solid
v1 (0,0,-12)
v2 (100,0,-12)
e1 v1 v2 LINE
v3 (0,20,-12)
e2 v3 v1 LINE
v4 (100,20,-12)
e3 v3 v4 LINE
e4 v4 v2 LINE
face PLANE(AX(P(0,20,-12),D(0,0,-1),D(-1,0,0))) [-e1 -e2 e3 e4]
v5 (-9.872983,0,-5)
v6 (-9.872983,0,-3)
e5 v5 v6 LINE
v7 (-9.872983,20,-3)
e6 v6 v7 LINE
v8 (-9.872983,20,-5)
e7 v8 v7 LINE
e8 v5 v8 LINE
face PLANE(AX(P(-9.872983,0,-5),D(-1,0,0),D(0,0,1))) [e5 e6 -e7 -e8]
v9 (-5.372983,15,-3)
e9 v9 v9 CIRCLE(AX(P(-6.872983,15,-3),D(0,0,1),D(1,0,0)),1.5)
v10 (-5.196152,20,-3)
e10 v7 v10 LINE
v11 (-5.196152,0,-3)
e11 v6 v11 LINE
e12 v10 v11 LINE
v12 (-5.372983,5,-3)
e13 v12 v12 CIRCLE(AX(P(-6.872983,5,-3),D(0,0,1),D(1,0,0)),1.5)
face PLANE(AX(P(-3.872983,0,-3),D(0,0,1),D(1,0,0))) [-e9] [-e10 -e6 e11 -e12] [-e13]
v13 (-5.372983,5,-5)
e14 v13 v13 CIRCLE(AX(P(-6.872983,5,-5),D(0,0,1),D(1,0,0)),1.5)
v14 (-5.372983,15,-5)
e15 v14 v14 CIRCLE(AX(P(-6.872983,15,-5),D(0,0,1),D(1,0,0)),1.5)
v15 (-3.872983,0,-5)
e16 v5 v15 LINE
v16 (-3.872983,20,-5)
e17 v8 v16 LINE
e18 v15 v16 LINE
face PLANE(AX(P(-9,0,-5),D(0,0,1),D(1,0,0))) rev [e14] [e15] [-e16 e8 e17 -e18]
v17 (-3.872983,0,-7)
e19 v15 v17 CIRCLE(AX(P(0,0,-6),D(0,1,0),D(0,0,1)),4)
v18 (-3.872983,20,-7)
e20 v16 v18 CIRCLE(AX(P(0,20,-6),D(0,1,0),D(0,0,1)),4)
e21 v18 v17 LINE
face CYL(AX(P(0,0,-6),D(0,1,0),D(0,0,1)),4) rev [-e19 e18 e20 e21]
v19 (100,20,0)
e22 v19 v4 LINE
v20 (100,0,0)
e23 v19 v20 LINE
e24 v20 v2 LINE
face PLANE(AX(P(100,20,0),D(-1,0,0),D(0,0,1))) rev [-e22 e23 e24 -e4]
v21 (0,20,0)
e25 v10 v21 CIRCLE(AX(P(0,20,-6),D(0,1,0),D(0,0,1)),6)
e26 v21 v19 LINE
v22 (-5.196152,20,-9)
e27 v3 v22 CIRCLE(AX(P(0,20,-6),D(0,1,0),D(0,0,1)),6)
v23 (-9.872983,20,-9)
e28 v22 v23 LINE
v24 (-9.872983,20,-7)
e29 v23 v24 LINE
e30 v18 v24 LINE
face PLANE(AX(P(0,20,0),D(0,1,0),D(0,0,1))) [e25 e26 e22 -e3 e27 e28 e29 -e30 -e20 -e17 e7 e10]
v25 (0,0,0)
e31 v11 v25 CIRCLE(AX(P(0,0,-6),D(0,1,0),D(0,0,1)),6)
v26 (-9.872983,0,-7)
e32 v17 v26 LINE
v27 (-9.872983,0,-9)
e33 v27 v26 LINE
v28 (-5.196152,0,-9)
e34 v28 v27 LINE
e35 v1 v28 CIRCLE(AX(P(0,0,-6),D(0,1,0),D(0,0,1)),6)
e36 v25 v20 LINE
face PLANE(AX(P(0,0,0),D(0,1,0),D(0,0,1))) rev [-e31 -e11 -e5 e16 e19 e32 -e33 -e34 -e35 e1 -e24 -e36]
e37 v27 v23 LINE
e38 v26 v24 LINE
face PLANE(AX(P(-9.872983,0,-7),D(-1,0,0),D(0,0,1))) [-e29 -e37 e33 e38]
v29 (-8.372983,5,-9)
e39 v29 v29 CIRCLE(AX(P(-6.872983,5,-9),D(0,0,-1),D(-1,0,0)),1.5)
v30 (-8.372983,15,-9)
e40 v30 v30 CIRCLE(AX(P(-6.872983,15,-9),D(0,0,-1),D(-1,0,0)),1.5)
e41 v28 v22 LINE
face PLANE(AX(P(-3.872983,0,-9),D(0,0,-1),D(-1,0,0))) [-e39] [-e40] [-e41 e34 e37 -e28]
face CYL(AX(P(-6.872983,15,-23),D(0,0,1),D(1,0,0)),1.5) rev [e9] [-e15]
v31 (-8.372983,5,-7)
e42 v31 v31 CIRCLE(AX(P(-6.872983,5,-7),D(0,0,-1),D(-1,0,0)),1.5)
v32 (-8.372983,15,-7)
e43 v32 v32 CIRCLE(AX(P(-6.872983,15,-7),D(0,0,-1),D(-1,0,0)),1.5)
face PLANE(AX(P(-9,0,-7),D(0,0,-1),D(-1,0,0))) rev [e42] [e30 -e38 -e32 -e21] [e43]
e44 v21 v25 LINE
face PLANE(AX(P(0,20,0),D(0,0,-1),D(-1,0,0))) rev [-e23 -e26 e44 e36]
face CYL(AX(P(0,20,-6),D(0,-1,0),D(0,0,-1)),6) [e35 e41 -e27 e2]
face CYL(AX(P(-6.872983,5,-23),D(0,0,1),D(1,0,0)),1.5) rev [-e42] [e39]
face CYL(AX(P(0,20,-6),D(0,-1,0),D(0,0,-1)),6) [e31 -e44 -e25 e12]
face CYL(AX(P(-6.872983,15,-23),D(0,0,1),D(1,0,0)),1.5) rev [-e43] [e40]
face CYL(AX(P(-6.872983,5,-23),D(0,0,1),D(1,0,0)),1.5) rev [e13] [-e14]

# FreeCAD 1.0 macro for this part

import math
import FreeCAD as App
import Part
import Sketcher
from FreeCAD import Vector

doc = App.newDocument("Part")
params = doc.addObject("Spreadsheet::Sheet", "Params")
for row, (alias, value) in enumerate([
    ("sketch1_radius", "6 mm"),
    ("sketch1_width", "100 mm"),
    ("pad1_length", "20 mm"),
    ("sketch2_diameter", "8 mm"),
    ("pocket1_length", "20 mm"),
    ("sketch3_width", "10 mm"),
    ("sketch3_height", "2 mm"),
    ("pocket2_length", "20 mm"),
    ("sketch4_width", "6 mm"),
    ("sketch4_height", "2 mm"),
    ("pad2_length", "20 mm"),
    ("sketch5_diameter", "3 mm"),
    ("pocket3_length", "20 mm"),
], start=1):
    params.set(f"A{row}", alias)
    params.set(f"B{row}", "=" + value)
    params.setAlias(f"B{row}", alias)

body = doc.addObject("PartDesign::Body", "Body")

# Sketch on XZ plane
sketch1 = doc.addObject("Sketcher::SketchObject", "Sketch")
body.addObject(sketch1)
sketch1.AttachmentSupport = (doc.XZ_Plane, [""])
sketch1.MapMode = "FlatFace"
sketch1.addGeometry(Part.LineSegment(Vector(0, 0, 0), Vector(100, 0, 0)), False)
sketch1.addGeometry(Part.LineSegment(Vector(100, 0, 0), Vector(100, -12, 0)), False)
sketch1.addGeometry(Part.LineSegment(Vector(100, -12, 0), Vector(0, -12, 0)), False)
sketch1.addGeometry(Part.ArcOfCircle(Part.Circle(Vector(0, -6, 0), Vector(0, 0, 1), 6), math.radians(90), math.radians(270)), False)
sketch1.addConstraint(Sketcher.Constraint("Coincident", 0, 2, 1, 1))
sketch1.addConstraint(Sketcher.Constraint("Coincident", 1, 2, 2, 1))
sketch1.addConstraint(Sketcher.Constraint("Tangent", 2, 2, 3, 2))
sketch1.addConstraint(Sketcher.Constraint("Tangent", 3, 1, 0, 1))
sketch1.addConstraint(Sketcher.Constraint("Horizontal", 0))
sketch1.addConstraint(Sketcher.Constraint("Vertical", 1))
sketch1.addConstraint(Sketcher.Constraint("Horizontal", 2))
sketch1.addConstraint(Sketcher.Constraint("Coincident", 3, 1, -1, 1))
sketch1.addConstraint(Sketcher.Constraint("Radius", 3, 6.0))
sketch1.addConstraint(Sketcher.Constraint("DistanceX", 0, 1, 0, 2, 100.0))
sketch1.setExpression("Constraints[8]", "Params.sketch1_radius")
sketch1.setExpression("Constraints[9]", "Params.sketch1_width")
pad1 = doc.addObject("PartDesign::Pad", "Pad")
body.addObject(pad1)
pad1.Profile = sketch1
pad1.setExpression("Length", "Params.pad1_length")
pad1.Reversed = True

# Sketch on XZ plane
sketch2 = doc.addObject("Sketcher::SketchObject", "Sketch001")
body.addObject(sketch2)
sketch2.AttachmentSupport = (doc.XZ_Plane, [""])
sketch2.MapMode = "FlatFace"
sketch2.AttachmentOffset = App.Placement(Vector(0, 0, -20), App.Rotation())
sketch2.addGeometry(Part.Circle(Vector(0, -6, 0), Vector(0, 0, 1), 4), False)
sketch2.addConstraint(Sketcher.Constraint("PointOnObject", 0, 3, -2))
sketch2.addConstraint(Sketcher.Constraint("Diameter", 0, 8.0))
sketch2.addConstraint(Sketcher.Constraint("DistanceY", 0, 3, -1, 1, 6.0))
sketch2.setExpression("Constraints[1]", "Params.sketch2_diameter")
pocket1 = doc.addObject("PartDesign::Pocket", "Pocket")
body.addObject(pocket1)
pocket1.Profile = sketch2
pocket1.setExpression("Length", "Params.pocket1_length")
pocket1.Reversed = True

# Sketch on XZ plane
sketch3 = doc.addObject("Sketcher::SketchObject", "Sketch002")
body.addObject(sketch3)
sketch3.AttachmentSupport = (doc.XZ_Plane, [""])
sketch3.MapMode = "FlatFace"
sketch3.AttachmentOffset = App.Placement(Vector(0, 0, -20), App.Rotation())
sketch3.addGeometry(Part.LineSegment(Vector(-9, -7, 0), Vector(-9, -5, 0)), False)
sketch3.addGeometry(Part.LineSegment(Vector(-9, -5, 0), Vector(1, -5, 0)), False)
sketch3.addGeometry(Part.LineSegment(Vector(1, -5, 0), Vector(1, -7, 0)), False)
sketch3.addGeometry(Part.LineSegment(Vector(1, -7, 0), Vector(-9, -7, 0)), False)
sketch3.addConstraint(Sketcher.Constraint("Coincident", 0, 2, 1, 1))
sketch3.addConstraint(Sketcher.Constraint("Coincident", 1, 2, 2, 1))
sketch3.addConstraint(Sketcher.Constraint("Coincident", 2, 2, 3, 1))
sketch3.addConstraint(Sketcher.Constraint("Coincident", 3, 2, 0, 1))
sketch3.addConstraint(Sketcher.Constraint("Vertical", 0))
sketch3.addConstraint(Sketcher.Constraint("Horizontal", 1))
sketch3.addConstraint(Sketcher.Constraint("Vertical", 2))
sketch3.addConstraint(Sketcher.Constraint("Horizontal", 3))
sketch3.addConstraint(Sketcher.Constraint("DistanceX", 1, 1, 1, 2, 10.0))
sketch3.addConstraint(Sketcher.Constraint("DistanceY", 0, 1, 0, 2, 2.0))
sketch3.addConstraint(Sketcher.Constraint("DistanceX", 0, 2, -1, 1, 9.0))
sketch3.addConstraint(Sketcher.Constraint("DistanceY", 0, 2, -1, 1, 5.0))
sketch3.setExpression("Constraints[8]", "Params.sketch3_width")
sketch3.setExpression("Constraints[9]", "Params.sketch3_height")
pocket2 = doc.addObject("PartDesign::Pocket", "Pocket001")
body.addObject(pocket2)
pocket2.Profile = sketch3
pocket2.setExpression("Length", "Params.pocket2_length")
pocket2.Reversed = True

# Sketch on XZ plane
sketch4 = doc.addObject("Sketcher::SketchObject", "Sketch003")
body.addObject(sketch4)
sketch4.AttachmentSupport = (doc.XZ_Plane, [""])
sketch4.MapMode = "FlatFace"
sketch4.AttachmentOffset = App.Placement(Vector(0, 0, -20), App.Rotation())
sketch4.addGeometry(Part.LineSegment(Vector(-9.9, -9, 0), Vector(-9.9, -7, 0)), False)
sketch4.addGeometry(Part.LineSegment(Vector(-9.9, -7, 0), Vector(-3.9, -7, 0)), False)
sketch4.addGeometry(Part.LineSegment(Vector(-3.9, -7, 0), Vector(-3.9, -9, 0)), False)
sketch4.addGeometry(Part.LineSegment(Vector(-3.9, -9, 0), Vector(-9.9, -9, 0)), False)
sketch4.addGeometry(Part.LineSegment(Vector(-9.9, -5, 0), Vector(-9.9, -3, 0)), False)
sketch4.addGeometry(Part.LineSegment(Vector(-9.9, -3, 0), Vector(-3.9, -3, 0)), False)
sketch4.addGeometry(Part.LineSegment(Vector(-3.9, -3, 0), Vector(-3.9, -5, 0)), False)
sketch4.addGeometry(Part.LineSegment(Vector(-3.9, -5, 0), Vector(-9.9, -5, 0)), False)
sketch4.addConstraint(Sketcher.Constraint("Coincident", 0, 2, 1, 1))
sketch4.addConstraint(Sketcher.Constraint("Coincident", 1, 2, 2, 1))
sketch4.addConstraint(Sketcher.Constraint("Coincident", 2, 2, 3, 1))
sketch4.addConstraint(Sketcher.Constraint("Coincident", 3, 2, 0, 1))
sketch4.addConstraint(Sketcher.Constraint("Coincident", 4, 2, 5, 1))
sketch4.addConstraint(Sketcher.Constraint("Coincident", 5, 2, 6, 1))
sketch4.addConstraint(Sketcher.Constraint("Coincident", 6, 2, 7, 1))
sketch4.addConstraint(Sketcher.Constraint("Coincident", 7, 2, 4, 1))
sketch4.addConstraint(Sketcher.Constraint("Vertical", 0))
sketch4.addConstraint(Sketcher.Constraint("Horizontal", 1))
sketch4.addConstraint(Sketcher.Constraint("Vertical", 2))
sketch4.addConstraint(Sketcher.Constraint("Horizontal", 3))
sketch4.addConstraint(Sketcher.Constraint("Vertical", 4))
sketch4.addConstraint(Sketcher.Constraint("Horizontal", 5))
sketch4.addConstraint(Sketcher.Constraint("Vertical", 6))
sketch4.addConstraint(Sketcher.Constraint("Horizontal", 7))
sketch4.addConstraint(Sketcher.Constraint("Vertical", 3, 2, 4, 2))
sketch4.addConstraint(Sketcher.Constraint("Vertical", 2, 2, 5, 2))
sketch4.addConstraint(Sketcher.Constraint("Equal", 2, 4))
sketch4.addConstraint(Sketcher.Constraint("DistanceX", 1, 1, 1, 2, 6.0))
sketch4.addConstraint(Sketcher.Constraint("DistanceY", 0, 1, 0, 2, 2.0))
sketch4.addConstraint(Sketcher.Constraint("DistanceY", 0, 2, -1, 1, 7.0))
sketch4.addConstraint(Sketcher.Constraint("DistanceY", 4, 2, -1, 1, 3.0))
sketch4.addConstraint(Sketcher.Constraint("DistanceX", 0, 2, -1, 1, 9.872983))
sketch4.setExpression("Constraints[19]", "Params.sketch4_width")
sketch4.setExpression("Constraints[20]", "Params.sketch4_height")
pad2 = doc.addObject("PartDesign::Pad", "Pad001")
body.addObject(pad2)
pad2.Profile = sketch4
pad2.setExpression("Length", "Params.pad2_length")

# Sketch on XY plane
sketch5 = doc.addObject("Sketcher::SketchObject", "Sketch004")
body.addObject(sketch5)
sketch5.AttachmentSupport = (doc.XY_Plane, [""])
sketch5.MapMode = "FlatFace"
sketch5.AttachmentOffset = App.Placement(Vector(0, 0, -3), App.Rotation())
sketch5.addGeometry(Part.Circle(Vector(-6.9, 15, 0), Vector(0, 0, 1), 1.5), False)
sketch5.addGeometry(Part.Circle(Vector(-6.9, 5, 0), Vector(0, 0, 1), 1.5), False)
sketch5.addConstraint(Sketcher.Constraint("Equal", 0, 1))
sketch5.addConstraint(Sketcher.Constraint("Vertical", 0, 3, 1, 3))
sketch5.addConstraint(Sketcher.Constraint("Diameter", 0, 3.0))
sketch5.addConstraint(Sketcher.Constraint("DistanceY", -1, 1, 0, 3, 15.0))
sketch5.addConstraint(Sketcher.Constraint("DistanceY", -1, 1, 1, 3, 5.0))
sketch5.addConstraint(Sketcher.Constraint("DistanceX", 0, 3, -1, 1, 6.872983))
sketch5.setExpression("Constraints[2]", "Params.sketch5_diameter")
pocket3 = doc.addObject("PartDesign::Pocket", "Pocket002")
body.addObject(pocket3)
pocket3.Profile = sketch5
pocket3.setExpression("Length", "Params.pocket3_length")

doc.recompute()
